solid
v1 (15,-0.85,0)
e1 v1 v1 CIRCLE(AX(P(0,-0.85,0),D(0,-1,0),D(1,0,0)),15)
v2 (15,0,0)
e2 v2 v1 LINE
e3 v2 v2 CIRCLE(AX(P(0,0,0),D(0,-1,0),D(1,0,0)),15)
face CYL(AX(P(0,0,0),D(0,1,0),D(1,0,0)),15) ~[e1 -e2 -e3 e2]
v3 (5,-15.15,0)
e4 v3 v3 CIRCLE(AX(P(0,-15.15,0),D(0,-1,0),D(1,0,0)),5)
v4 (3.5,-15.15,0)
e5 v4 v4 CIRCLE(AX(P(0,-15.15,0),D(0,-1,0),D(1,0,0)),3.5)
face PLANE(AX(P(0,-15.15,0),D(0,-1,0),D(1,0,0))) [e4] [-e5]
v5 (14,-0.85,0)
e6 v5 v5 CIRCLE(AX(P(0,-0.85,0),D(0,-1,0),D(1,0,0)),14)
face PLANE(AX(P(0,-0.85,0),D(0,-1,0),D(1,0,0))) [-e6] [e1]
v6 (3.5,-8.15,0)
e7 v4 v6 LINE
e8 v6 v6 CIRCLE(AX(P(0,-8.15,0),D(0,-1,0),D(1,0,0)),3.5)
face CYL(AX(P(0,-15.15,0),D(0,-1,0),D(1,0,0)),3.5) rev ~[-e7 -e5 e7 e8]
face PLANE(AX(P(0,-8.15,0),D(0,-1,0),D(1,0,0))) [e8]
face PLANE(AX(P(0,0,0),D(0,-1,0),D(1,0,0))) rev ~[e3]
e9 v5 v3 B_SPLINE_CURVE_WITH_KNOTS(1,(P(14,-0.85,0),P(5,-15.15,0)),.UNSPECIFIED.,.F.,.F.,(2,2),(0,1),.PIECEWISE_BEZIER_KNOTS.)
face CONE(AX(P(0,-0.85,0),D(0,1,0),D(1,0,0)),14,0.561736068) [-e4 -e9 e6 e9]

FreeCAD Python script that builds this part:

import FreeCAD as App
import Part
import Sketcher
from FreeCAD import Vector
Q = App.Units.Quantity

doc = App.newDocument("Part")
body = doc.addObject("PartDesign::Body", "Body")

# Sketch on XZ plane
sketch1 = body.newObject("Sketcher::SketchObject", "Sketch")
sketch1.AttachmentSupport = (doc.getObject("XZ_Plane"), [""])
sketch1.MapMode = "FlatFace"
sketch1.addGeometry(Part.Circle(Vector(0, 0, 0), Vector(0, 0, 1), 15), False)
sketch1.addConstraint([
    Sketcher.Constraint("Coincident", 0, 3, -1, 1),
    Sketcher.Constraint("Diameter", 0, Q("30 mm")),
])
pad1 = body.newObject("PartDesign::Pad", "Pad")
pad1.Profile = sketch1
pad1.Length = 0.85

# Sketch on XZ plane
sketch2 = body.newObject("Sketcher::SketchObject", "Sketch001")
sketch2.AttachmentSupport = (doc.getObject("XZ_Plane"), [""])
sketch2.MapMode = "FlatFace"
sketch2.AttachmentOffset = App.Placement(Vector(0, 0, 0.85), App.Rotation())
sketch2.addGeometry(Part.Circle(Vector(0, 0, 0), Vector(0, 0, 1), 14), False)
sketch2.addConstraint([
    Sketcher.Constraint("Coincident", 0, 3, -1, 1),
    Sketcher.Constraint("Diameter", 0, Q("28 mm")),
])

# Sketch on XZ plane
sketch3 = body.newObject("Sketcher::SketchObject", "Sketch002")
sketch3.AttachmentSupport = (doc.getObject("XZ_Plane"), [""])
sketch3.MapMode = "FlatFace"
sketch3.AttachmentOffset = App.Placement(Vector(0, 0, 15.15), App.Rotation())
sketch3.addGeometry(Part.Circle(Vector(0, 0, 0), Vector(0, 0, 1), 5), False)
sketch3.addConstraint([
    Sketcher.Constraint("Coincident", 0, 3, -1, 1),
    Sketcher.Constraint("Diameter", 0, Q("10 mm")),
])

additiveloft = body.newObject("PartDesign::AdditiveLoft", "AdditiveLoft")
additiveloft.Profile = sketch2
additiveloft.Sections = [sketch3]

# Sketch on XZ plane
sketch4 = body.newObject("Sketcher::SketchObject", "Sketch003")
sketch4.AttachmentSupport = (doc.getObject("XZ_Plane"), [""])
sketch4.MapMode = "FlatFace"
sketch4.AttachmentOffset = App.Placement(Vector(0, 0, 15.15), App.Rotation())
sketch4.addGeometry(Part.Circle(Vector(0, 0, 0), Vector(0, 0, 1), 3.5), False)
sketch4.addConstraint([
    Sketcher.Constraint("Coincident", 0, 3, -1, 1),
    Sketcher.Constraint("Diameter", 0, Q("7 mm")),
])
pocket1 = body.newObject("PartDesign::Pocket", "Pocket")
pocket1.Profile = sketch4
pocket1.Length = 7

doc.recompute()
